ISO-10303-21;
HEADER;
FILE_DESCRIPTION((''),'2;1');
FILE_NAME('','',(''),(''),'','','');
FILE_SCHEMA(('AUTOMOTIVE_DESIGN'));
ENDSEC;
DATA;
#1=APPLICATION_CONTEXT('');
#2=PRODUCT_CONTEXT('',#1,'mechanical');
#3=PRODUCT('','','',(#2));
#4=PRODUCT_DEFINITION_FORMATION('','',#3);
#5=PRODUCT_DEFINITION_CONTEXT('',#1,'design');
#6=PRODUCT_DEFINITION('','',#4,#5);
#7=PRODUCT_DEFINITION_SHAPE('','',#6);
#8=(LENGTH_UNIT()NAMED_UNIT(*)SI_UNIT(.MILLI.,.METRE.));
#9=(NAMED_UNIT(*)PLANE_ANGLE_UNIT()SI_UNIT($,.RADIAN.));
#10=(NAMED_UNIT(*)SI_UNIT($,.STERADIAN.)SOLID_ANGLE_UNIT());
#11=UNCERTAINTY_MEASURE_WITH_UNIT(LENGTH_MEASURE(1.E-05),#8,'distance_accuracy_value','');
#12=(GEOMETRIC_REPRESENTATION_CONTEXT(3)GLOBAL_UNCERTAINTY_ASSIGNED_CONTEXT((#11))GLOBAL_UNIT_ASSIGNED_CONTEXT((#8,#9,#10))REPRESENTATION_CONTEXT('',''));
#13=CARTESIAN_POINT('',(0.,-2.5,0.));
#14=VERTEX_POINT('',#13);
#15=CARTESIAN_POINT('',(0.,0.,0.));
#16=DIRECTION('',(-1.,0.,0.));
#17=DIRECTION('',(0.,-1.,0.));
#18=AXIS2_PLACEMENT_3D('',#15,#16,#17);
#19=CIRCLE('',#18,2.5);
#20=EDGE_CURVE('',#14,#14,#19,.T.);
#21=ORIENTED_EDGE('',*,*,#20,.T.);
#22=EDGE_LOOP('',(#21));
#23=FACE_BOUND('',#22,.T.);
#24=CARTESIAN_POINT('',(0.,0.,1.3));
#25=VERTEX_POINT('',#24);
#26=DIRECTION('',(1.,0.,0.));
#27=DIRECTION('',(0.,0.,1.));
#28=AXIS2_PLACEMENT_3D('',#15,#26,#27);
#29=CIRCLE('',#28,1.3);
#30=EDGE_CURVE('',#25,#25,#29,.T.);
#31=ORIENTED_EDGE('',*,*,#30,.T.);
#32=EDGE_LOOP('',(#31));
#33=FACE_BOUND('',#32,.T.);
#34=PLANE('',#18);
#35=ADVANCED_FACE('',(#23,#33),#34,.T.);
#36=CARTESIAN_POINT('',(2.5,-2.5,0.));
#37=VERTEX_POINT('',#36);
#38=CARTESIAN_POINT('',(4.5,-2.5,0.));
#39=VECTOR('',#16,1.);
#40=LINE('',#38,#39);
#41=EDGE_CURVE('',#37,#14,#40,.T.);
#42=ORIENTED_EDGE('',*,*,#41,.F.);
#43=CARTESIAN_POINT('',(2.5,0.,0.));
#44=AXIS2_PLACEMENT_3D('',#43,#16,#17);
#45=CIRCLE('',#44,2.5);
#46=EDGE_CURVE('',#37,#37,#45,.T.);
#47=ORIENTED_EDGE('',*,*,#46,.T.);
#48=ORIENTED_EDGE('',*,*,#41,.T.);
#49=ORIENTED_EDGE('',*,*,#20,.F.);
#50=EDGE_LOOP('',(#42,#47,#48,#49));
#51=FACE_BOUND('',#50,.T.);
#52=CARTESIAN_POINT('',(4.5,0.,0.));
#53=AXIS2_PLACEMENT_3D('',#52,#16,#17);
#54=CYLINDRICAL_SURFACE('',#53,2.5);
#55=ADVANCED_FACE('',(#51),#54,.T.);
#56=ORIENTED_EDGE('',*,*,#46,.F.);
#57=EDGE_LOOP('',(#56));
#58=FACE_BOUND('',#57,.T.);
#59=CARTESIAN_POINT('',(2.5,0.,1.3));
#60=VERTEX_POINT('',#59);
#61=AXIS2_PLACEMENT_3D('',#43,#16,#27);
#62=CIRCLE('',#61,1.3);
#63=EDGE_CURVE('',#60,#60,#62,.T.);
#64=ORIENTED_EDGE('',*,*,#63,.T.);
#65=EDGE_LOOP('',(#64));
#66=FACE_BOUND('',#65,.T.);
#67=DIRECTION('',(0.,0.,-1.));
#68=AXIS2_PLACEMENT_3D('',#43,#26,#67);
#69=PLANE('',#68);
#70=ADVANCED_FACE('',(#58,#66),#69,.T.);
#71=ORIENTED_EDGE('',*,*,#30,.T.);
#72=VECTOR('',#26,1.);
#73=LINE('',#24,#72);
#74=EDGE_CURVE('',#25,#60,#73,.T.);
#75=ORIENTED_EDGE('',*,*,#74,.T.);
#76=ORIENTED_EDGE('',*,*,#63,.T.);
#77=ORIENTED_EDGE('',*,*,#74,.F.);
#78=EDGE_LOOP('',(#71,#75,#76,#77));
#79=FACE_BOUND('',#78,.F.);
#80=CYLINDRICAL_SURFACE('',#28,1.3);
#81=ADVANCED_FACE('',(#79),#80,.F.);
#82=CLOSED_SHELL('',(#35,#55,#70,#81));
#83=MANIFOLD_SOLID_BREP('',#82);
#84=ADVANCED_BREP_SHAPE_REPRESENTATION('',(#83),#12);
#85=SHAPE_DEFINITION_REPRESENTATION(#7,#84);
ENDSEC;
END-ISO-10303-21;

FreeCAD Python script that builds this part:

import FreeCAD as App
import Part
import Sketcher
Q = App.Units.Quantity

doc = App.newDocument("Part")
params = doc.addObject("Spreadsheet::Sheet", "Params")
for row, (alias, value) in enumerate([
    ("sketch1_width", "4.5 mm"),
    ("sketch1_height", "2.5 mm"),
    ("revolution_angle", "360 deg"),
    ("sketch2_diameter", "2.6 mm"),
    ("hole_diameter", "2.6 mm"),
    ("hole_depth", "4.5 mm"),
    ("sketch3_diameter", "5 mm"),
    ("sketch3_diameter2", "2.6 mm"),
    ("pocket1_length", "2 mm"),
], start=1):
    params.set(f"A{row}", alias)
    params.set(f"B{row}", "=" + value)
    params.setAlias(f"B{row}", alias)

body = doc.addObject("PartDesign::Body", "Body")

# Sketch on XY plane
sketch1 = body.newObject("Sketcher::SketchObject", "Sketch")
sketch1.AttachmentSupport = (doc.getObject("XY_Plane"), [""])
sketch1.MapMode = "FlatFace"
sketch1.addGeometry([
    Part.LineSegment(App.Vector(4.5, 0, 0), App.Vector(0, 0, 0)),
    Part.LineSegment(App.Vector(0, 0, 0), App.Vector(0, -2.5, 0)),
    Part.LineSegment(App.Vector(0, -2.5, 0), App.Vector(4.5, -2.5, 0)),
    Part.LineSegment(App.Vector(4.5, -2.5, 0), App.Vector(4.5, 0, 0)),
], False)
sketch1.addConstraint([
    Sketcher.Constraint("Coincident", 0, 2, 1, 1),
    Sketcher.Constraint("Coincident", 1, 2, 2, 1),
    Sketcher.Constraint("Coincident", 2, 2, 3, 1),
    Sketcher.Constraint("Coincident", 3, 2, 0, 1),
    Sketcher.Constraint("Horizontal", 0),
    Sketcher.Constraint("Vertical", 1),
    Sketcher.Constraint("Horizontal", 2),
    Sketcher.Constraint("Vertical", 3),
    Sketcher.Constraint("Coincident", 0, 2, -1, 1),
    Sketcher.Constraint("DistanceX", 0, 2, 0, 1, Q("4.5 mm")),
    Sketcher.Constraint("DistanceY", 1, 2, 1, 1, Q("2.5 mm")),
])
sketch1.setExpression("Constraints[9]", "Params.sketch1_width")
sketch1.setExpression("Constraints[10]", "Params.sketch1_height")
revolution = body.newObject("PartDesign::Revolution", "Revolution")
revolution.Profile = sketch1
revolution.ReferenceAxis = (sketch1, ["H_Axis"])
revolution.setExpression("Angle", "Params.revolution_angle")

# Sketch on YZ plane
sketch2 = body.newObject("Sketcher::SketchObject", "Sketch001")
sketch2.AttachmentSupport = (doc.getObject("YZ_Plane"), [""])
sketch2.MapMode = "FlatFace"
sketch2.addGeometry(Part.Circle(App.Vector(0, 0, 0), App.Vector(0, 0, 1), 1.3), False)
sketch2.addConstraint([
    Sketcher.Constraint("Coincident", 0, 3, -1, 1),
    Sketcher.Constraint("Diameter", 0, Q("2.6 mm")),
])
sketch2.setExpression("Constraints[1]", "Params.sketch2_diameter")
doc.recompute()
hole = body.newObject("PartDesign::Hole", "Hole")
hole.Profile = sketch2
hole.ThreadType = "None"
hole.setExpression("Diameter", "Params.hole_diameter")
hole.DepthType = "Dimension"
hole.setExpression("Depth", "Params.hole_depth")
hole.DrillPoint = "Flat"
hole.Reversed = True

# Sketch on YZ plane
sketch3 = body.newObject("Sketcher::SketchObject", "Sketch002")
sketch3.AttachmentSupport = (doc.getObject("YZ_Plane"), [""])
sketch3.MapMode = "FlatFace"
sketch3.AttachmentOffset = App.Placement(App.Vector(0, 0, 4.5), App.Rotation())
sketch3.addGeometry([
    Part.Circle(App.Vector(0, 0, 0), App.Vector(0, 0, 1), 2.5),
    Part.Circle(App.Vector(0, 0, 0), App.Vector(0, 0, 1), 1.3),
], False)
sketch3.addConstraint([
    Sketcher.Constraint("Coincident", 0, 3, -1, 1),
    Sketcher.Constraint("Coincident", 1, 3, -1, 1),
    Sketcher.Constraint("Diameter", 0, Q("5 mm")),
    Sketcher.Constraint("Diameter", 1, Q("2.6 mm")),
])
sketch3.setExpression("Constraints[2]", "Params.sketch3_diameter")
sketch3.setExpression("Constraints[3]", "Params.sketch3_diameter2")
pocket1 = body.newObject("PartDesign::Pocket", "Pocket")
pocket1.Profile = sketch3
pocket1.setExpression("Length", "Params.pocket1_length")

doc.recompute()
